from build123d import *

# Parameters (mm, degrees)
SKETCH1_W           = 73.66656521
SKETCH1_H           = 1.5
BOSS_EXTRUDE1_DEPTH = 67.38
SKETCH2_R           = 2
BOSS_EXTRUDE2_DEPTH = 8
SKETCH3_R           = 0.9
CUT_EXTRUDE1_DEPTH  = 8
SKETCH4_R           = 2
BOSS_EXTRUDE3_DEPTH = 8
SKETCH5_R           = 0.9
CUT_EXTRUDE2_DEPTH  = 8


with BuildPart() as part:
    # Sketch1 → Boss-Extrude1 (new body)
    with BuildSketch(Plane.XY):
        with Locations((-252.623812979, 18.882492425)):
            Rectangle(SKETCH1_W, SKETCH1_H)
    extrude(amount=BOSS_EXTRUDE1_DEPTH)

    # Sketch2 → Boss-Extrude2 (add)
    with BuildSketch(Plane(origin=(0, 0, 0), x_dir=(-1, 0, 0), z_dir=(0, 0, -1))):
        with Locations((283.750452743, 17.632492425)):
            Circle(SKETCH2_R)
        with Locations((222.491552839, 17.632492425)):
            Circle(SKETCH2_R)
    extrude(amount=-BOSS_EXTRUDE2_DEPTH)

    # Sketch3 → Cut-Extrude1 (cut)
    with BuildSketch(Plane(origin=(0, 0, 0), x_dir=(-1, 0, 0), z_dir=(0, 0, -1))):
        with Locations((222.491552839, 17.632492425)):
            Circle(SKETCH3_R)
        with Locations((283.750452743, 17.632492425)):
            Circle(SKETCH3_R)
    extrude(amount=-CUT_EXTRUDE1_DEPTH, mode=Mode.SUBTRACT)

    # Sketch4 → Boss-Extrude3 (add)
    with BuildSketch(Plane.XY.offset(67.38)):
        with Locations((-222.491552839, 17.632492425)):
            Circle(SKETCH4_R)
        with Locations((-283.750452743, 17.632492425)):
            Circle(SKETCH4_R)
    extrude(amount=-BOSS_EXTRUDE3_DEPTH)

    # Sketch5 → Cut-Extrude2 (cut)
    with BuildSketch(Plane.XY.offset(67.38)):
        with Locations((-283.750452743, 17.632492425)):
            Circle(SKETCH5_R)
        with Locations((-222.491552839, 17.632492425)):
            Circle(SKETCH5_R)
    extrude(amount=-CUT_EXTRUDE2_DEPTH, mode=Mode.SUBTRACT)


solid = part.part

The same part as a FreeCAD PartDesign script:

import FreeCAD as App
import Part
import Sketcher
Q = App.Units.Quantity


def add_polygon(sketch, points):
    """Adds a closed chain of lines whose ends are joined by coincident constraints."""
    first, n = sketch.GeometryCount, len(points)
    for a, b in zip(points, points[1:] + points[:1]):
        sketch.addGeometry(Part.LineSegment(App.Vector(*a, 0), App.Vector(*b, 0)), False)
    for i in range(n):
        sketch.addConstraint(Sketcher.Constraint("Coincident", first + i, 2, first + (i + 1) % n, 1))

doc = App.newDocument("Part")
body = doc.addObject("PartDesign::Body", "Body")

# Sketch on XY plane
sketch1 = body.newObject("Sketcher::SketchObject", "Sketch")
sketch1.AttachmentSupport = (doc.getObject("XY_Plane"), [""])
sketch1.MapMode = "FlatFace"
add_polygon(sketch1, [(-289.5, 19.6), (-289.5, 18.1), (-215.8, 18.1), (-215.8, 19.6)])  # lines 0-3
sketch1.addConstraint(Sketcher.Constraint("Vertical", 0))
sketch1.addConstraint(Sketcher.Constraint("Horizontal", 1))
sketch1.addConstraint(Sketcher.Constraint("Vertical", 2))
sketch1.addConstraint(Sketcher.Constraint("Horizontal", 3))
sketch1.addConstraint(Sketcher.Constraint("DistanceY", 0, 2, 0, 1, Q("1.5 mm")))
sketch1.addConstraint(Sketcher.Constraint("DistanceX", 1, 1, 1, 2, Q("73.666565 mm")))
sketch1.addConstraint(Sketcher.Constraint("DistanceX", 1, 2, -1, 1, Q("215.79053 mm")))
sketch1.addConstraint(Sketcher.Constraint("DistanceY", -1, 1, 0, 2, Q("18.132492 mm")))
pad1 = body.newObject("PartDesign::Pad", "Pad")
pad1.Profile = sketch1
pad1.Length = 67.38

# Sketch on XY plane
sketch2 = body.newObject("Sketcher::SketchObject", "Sketch001")
sketch2.AttachmentSupport = (doc.getObject("XY_Plane"), [""])
sketch2.MapMode = "FlatFace"
sketch2.addGeometry(Part.Circle(App.Vector(-283.8, 17.6, 0), App.Vector(0, 0, 1), 2), False)
sketch2.addGeometry(Part.Circle(App.Vector(-222.5, 17.6, 0), App.Vector(0, 0, 1), 2), False)
sketch2.addConstraint(Sketcher.Constraint("Equal", 0, 1))
sketch2.addConstraint(Sketcher.Constraint("Horizontal", 0, 3, 1, 3))
sketch2.addConstraint(Sketcher.Constraint("Diameter", 0, Q("4 mm")))
sketch2.addConstraint(Sketcher.Constraint("DistanceX", 0, 3, 1, 3, Q("61.2589 mm")))
sketch2.addConstraint(Sketcher.Constraint("DistanceX", 0, 3, -1, 1, Q("283.750453 mm")))
sketch2.addConstraint(Sketcher.Constraint("DistanceY", -1, 1, 0, 3, Q("17.632492 mm")))
pad2 = body.newObject("PartDesign::Pad", "Pad001")
pad2.Profile = sketch2
pad2.Length = 8

# Sketch on XY plane
sketch3 = body.newObject("Sketcher::SketchObject", "Sketch002")
sketch3.AttachmentSupport = (doc.getObject("XY_Plane"), [""])
sketch3.MapMode = "FlatFace"
sketch3.addGeometry(Part.Circle(App.Vector(-222.5, 17.6, 0), App.Vector(0, 0, 1), 0.9), False)
sketch3.addGeometry(Part.Circle(App.Vector(-283.8, 17.6, 0), App.Vector(0, 0, 1), 0.9), False)
sketch3.addConstraint(Sketcher.Constraint("Equal", 0, 1))
sketch3.addConstraint(Sketcher.Constraint("Horizontal", 0, 3, 1, 3))
sketch3.addConstraint(Sketcher.Constraint("Diameter", 0, Q("1.8 mm")))
sketch3.addConstraint(Sketcher.Constraint("DistanceX", 1, 3, 0, 3, Q("61.2589 mm")))
sketch3.addConstraint(Sketcher.Constraint("DistanceX", 0, 3, -1, 1, Q("222.491553 mm")))
sketch3.addConstraint(Sketcher.Constraint("DistanceY", -1, 1, 0, 3, Q("17.632492 mm")))
pocket1 = body.newObject("PartDesign::Pocket", "Pocket")
pocket1.Profile = sketch3
pocket1.Length = 8
pocket1.Reversed = True

# Sketch on XY plane
sketch4 = body.newObject("Sketcher::SketchObject", "Sketch003")
sketch4.AttachmentSupport = (doc.getObject("XY_Plane"), [""])
sketch4.MapMode = "FlatFace"
sketch4.AttachmentOffset = App.Placement(App.Vector(0, 0, 67.38), App.Rotation())
sketch4.addGeometry(Part.Circle(App.Vector(-222.5, 17.6, 0), App.Vector(0, 0, 1), 2), False)
sketch4.addGeometry(Part.Circle(App.Vector(-283.8, 17.6, 0), App.Vector(0, 0, 1), 2), False)
sketch4.addConstraint(Sketcher.Constraint("Equal", 0, 1))
sketch4.addConstraint(Sketcher.Constraint("Horizontal", 0, 3, 1, 3))
sketch4.addConstraint(Sketcher.Constraint("Diameter", 0, Q("4 mm")))
sketch4.addConstraint(Sketcher.Constraint("DistanceX", 1, 3, 0, 3, Q("61.2589 mm")))
sketch4.addConstraint(Sketcher.Constraint("DistanceX", 0, 3, -1, 1, Q("222.491553 mm")))
sketch4.addConstraint(Sketcher.Constraint("DistanceY", -1, 1, 0, 3, Q("17.632492 mm")))
pad3 = body.newObject("PartDesign::Pad", "Pad002")
pad3.Profile = sketch4
pad3.Length = 8
pad3.Reversed = True

# Sketch on XY plane
sketch5 = body.newObject("Sketcher::SketchObject", "Sketch004")
sketch5.AttachmentSupport = (doc.getObject("XY_Plane"), [""])
sketch5.MapMode = "FlatFace"
sketch5.AttachmentOffset = App.Placement(App.Vector(0, 0, 67.38), App.Rotation())
sketch5.addGeometry(Part.Circle(App.Vector(-283.8, 17.6, 0), App.Vector(0, 0, 1), 0.9), False)
sketch5.addGeometry(Part.Circle(App.Vector(-222.5, 17.6, 0), App.Vector(0, 0, 1), 0.9), False)
sketch5.addConstraint(Sketcher.Constraint("Equal", 0, 1))
sketch5.addConstraint(Sketcher.Constraint("Horizontal", 0, 3, 1, 3))
sketch5.addConstraint(Sketcher.Constraint("Diameter", 0, Q("1.8 mm")))
sketch5.addConstraint(Sketcher.Constraint("DistanceX", 0, 3, 1, 3, Q("61.2589 mm")))
sketch5.addConstraint(Sketcher.Constraint("DistanceX", 0, 3, -1, 1, Q("283.750453 mm")))
sketch5.addConstraint(Sketcher.Constraint("DistanceY", -1, 1, 0, 3, Q("17.632492 mm")))
pocket2 = body.newObject("PartDesign::Pocket", "Pocket001")
pocket2.Profile = sketch5
pocket2.Length = 8

doc.recompute()
